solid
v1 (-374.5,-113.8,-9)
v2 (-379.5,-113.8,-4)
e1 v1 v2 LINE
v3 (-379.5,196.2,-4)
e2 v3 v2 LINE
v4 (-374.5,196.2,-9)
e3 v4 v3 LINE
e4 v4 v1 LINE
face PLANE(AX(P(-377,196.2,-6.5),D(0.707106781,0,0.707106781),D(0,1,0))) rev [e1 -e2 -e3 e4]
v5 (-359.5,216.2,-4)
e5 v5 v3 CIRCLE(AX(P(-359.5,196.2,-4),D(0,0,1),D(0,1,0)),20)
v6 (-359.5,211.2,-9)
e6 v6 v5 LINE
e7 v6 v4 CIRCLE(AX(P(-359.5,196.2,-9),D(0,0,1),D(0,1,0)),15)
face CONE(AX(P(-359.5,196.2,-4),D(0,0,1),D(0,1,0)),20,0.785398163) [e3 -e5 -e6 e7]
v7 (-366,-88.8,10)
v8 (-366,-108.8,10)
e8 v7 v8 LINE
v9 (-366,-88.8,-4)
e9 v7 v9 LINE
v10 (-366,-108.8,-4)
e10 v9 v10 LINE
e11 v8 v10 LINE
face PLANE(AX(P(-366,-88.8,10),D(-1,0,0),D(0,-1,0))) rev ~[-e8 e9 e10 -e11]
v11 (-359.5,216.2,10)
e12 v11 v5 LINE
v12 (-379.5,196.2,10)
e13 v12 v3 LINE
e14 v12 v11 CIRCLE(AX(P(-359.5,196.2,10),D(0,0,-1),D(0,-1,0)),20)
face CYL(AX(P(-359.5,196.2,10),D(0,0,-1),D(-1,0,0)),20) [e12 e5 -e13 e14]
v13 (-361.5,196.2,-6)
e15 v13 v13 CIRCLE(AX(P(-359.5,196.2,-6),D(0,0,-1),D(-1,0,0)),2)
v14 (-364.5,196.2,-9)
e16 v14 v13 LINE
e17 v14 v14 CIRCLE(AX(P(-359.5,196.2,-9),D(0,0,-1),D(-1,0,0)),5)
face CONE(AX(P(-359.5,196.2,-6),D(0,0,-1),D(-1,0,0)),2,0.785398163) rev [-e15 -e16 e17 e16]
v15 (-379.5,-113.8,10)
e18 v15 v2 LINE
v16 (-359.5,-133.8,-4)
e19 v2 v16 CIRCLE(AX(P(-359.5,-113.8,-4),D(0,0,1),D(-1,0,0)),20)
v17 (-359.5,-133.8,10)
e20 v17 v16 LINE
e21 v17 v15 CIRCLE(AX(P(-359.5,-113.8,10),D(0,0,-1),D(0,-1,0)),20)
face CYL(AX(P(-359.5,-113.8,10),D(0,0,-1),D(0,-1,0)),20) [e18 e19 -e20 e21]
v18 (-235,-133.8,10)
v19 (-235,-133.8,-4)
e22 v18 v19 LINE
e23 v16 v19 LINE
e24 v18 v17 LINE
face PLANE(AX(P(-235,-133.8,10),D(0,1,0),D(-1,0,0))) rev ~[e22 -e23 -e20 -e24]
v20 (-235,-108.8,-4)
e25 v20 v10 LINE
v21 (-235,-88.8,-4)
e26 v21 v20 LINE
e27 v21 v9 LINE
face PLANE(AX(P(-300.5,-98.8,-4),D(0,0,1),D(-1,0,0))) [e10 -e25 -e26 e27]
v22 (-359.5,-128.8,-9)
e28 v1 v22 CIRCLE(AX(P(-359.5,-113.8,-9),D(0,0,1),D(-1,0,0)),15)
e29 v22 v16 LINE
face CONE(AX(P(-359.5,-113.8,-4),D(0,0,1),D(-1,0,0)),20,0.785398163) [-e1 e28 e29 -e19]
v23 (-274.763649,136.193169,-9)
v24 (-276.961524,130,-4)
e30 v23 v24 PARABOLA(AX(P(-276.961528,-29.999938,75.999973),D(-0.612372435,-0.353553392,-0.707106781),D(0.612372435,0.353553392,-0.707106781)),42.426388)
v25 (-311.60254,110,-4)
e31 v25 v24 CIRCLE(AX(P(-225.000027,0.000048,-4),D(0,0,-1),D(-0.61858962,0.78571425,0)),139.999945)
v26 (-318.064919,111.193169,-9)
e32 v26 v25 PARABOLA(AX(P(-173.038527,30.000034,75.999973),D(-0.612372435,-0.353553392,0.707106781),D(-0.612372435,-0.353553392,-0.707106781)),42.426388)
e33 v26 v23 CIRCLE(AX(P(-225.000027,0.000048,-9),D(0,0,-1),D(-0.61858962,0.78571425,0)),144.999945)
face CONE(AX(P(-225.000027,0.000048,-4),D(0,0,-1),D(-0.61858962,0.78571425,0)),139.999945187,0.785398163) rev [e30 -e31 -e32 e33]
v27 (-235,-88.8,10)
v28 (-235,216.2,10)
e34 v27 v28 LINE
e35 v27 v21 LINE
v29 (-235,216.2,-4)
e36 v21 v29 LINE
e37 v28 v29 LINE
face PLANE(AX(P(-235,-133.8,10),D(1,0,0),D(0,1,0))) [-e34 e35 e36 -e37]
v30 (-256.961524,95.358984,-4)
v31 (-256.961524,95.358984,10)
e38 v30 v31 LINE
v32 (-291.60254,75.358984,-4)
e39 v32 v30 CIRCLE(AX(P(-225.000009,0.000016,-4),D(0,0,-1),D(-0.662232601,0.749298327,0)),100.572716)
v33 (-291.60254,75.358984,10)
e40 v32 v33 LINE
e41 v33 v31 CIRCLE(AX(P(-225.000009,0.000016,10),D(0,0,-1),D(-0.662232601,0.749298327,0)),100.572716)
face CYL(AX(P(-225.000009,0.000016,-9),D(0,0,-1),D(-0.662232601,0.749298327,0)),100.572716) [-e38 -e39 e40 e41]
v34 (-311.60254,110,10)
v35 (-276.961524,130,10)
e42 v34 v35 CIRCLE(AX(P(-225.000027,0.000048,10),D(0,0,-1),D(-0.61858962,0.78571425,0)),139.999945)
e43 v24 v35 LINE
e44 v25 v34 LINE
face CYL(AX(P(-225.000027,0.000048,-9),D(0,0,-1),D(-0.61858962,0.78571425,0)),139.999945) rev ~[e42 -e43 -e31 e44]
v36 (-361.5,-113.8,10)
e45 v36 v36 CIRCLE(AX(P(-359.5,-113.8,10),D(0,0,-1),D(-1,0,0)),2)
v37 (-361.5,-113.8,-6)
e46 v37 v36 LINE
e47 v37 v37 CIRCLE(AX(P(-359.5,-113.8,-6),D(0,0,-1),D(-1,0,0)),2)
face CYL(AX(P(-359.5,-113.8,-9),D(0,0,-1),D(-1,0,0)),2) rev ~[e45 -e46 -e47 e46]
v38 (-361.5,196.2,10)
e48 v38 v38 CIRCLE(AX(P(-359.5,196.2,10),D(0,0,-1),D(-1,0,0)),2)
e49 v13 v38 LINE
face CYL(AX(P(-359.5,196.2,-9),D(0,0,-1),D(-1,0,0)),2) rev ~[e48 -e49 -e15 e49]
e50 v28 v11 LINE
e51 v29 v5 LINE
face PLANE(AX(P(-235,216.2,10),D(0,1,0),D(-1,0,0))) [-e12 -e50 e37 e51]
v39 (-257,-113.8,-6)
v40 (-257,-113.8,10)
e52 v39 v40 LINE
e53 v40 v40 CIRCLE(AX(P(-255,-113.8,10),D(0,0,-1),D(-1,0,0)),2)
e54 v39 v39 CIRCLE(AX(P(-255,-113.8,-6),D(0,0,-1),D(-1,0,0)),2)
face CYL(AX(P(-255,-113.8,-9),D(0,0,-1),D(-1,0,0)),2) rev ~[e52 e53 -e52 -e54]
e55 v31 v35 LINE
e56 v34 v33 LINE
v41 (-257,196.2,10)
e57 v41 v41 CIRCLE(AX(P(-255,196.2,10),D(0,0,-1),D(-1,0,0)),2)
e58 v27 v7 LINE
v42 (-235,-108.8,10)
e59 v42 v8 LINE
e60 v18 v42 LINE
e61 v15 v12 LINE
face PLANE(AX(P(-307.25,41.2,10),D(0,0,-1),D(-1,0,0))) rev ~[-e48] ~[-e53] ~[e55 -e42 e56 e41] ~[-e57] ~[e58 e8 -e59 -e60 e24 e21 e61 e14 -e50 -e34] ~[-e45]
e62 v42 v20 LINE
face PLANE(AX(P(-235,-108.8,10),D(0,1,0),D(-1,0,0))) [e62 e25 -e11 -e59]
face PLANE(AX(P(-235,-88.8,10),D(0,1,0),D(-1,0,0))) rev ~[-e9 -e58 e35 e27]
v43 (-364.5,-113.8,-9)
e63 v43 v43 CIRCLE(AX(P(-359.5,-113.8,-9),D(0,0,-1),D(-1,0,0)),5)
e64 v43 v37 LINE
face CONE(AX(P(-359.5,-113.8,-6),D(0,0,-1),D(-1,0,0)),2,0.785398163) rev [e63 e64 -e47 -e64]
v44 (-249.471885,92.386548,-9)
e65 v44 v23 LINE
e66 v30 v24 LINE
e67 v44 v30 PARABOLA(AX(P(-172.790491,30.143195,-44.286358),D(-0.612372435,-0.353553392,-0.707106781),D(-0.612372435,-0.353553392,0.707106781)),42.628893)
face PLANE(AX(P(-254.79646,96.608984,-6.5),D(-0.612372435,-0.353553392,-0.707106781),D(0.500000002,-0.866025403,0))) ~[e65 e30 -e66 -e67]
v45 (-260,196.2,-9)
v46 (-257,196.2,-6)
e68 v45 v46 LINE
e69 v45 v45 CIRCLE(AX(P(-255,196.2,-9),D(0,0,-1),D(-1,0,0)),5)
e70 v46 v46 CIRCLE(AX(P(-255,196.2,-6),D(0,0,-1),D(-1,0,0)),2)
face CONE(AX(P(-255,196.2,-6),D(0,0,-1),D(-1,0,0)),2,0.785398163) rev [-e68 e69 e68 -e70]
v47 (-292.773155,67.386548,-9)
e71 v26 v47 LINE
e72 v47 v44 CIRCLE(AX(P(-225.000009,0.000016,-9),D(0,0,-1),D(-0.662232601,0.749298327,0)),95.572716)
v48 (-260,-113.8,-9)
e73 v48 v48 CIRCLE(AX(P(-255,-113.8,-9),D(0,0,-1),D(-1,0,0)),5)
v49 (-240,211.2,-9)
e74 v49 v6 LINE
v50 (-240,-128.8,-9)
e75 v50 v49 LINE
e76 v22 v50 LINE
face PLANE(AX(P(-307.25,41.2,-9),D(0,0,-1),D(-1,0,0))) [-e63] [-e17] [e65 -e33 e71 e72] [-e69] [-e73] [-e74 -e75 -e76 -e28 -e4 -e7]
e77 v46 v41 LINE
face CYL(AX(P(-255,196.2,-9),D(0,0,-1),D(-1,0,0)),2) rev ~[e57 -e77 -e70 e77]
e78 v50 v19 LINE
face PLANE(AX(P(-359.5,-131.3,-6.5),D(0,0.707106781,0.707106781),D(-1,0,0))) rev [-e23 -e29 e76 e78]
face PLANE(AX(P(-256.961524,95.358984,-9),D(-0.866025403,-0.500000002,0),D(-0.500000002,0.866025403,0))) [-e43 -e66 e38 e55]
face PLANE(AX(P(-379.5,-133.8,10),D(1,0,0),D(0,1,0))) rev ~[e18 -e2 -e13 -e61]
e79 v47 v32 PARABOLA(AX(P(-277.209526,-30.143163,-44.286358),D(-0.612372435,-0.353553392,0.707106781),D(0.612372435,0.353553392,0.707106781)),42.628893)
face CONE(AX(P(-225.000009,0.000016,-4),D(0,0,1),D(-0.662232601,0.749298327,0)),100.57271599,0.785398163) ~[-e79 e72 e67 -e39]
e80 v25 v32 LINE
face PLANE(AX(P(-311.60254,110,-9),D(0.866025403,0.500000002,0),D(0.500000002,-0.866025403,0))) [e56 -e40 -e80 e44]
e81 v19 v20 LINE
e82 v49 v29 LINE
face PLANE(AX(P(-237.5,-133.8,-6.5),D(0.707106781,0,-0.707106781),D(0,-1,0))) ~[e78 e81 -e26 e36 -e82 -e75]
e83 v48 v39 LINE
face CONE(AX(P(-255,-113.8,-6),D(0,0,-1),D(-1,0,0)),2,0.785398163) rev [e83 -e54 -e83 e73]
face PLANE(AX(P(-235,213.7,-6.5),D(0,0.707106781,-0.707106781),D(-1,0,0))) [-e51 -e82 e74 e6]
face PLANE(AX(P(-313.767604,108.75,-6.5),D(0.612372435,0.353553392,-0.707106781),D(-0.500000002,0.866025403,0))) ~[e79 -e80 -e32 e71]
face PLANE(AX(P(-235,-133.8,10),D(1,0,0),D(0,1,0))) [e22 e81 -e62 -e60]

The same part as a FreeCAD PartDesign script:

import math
import FreeCAD as App
import Part
import Sketcher
from FreeCAD import Vector
Q = App.Units.Quantity


def edges_at(feature, points):
    """Names of the edges that pass closest to the given points."""
    edges = feature.Shape.Edges
    near = lambda p: min(range(len(edges)), key=lambda i: edges[i].distToShape(Part.Vertex(*p))[0])
    return sorted({f"Edge{near(p) + 1}" for p in points})

doc = App.newDocument("Part")
body = doc.addObject("PartDesign::Body", "Body")

# Sketch on XY plane
sketch1 = doc.addObject("Sketcher::SketchObject", "Sketch")
body.addObject(sketch1)
sketch1.AttachmentSupport = (doc.XY_Plane, [""])
sketch1.MapMode = "FlatFace"
sketch1.addGeometry(Part.LineSegment(Vector(235, 216.2, 0), Vector(235, -133.8, 0)), False)
sketch1.addGeometry(Part.LineSegment(Vector(235, -133.8, 0), Vector(379.5, -133.8, 0)), False)
sketch1.addGeometry(Part.LineSegment(Vector(379.5, -133.8, 0), Vector(379.5, 216.2, 0)), False)
sketch1.addGeometry(Part.LineSegment(Vector(379.5, 216.2, 0), Vector(235, 216.2, 0)), False)
sketch1.addConstraint(Sketcher.Constraint("Coincident", 0, 2, 1, 1))
sketch1.addConstraint(Sketcher.Constraint("Coincident", 1, 2, 2, 1))
sketch1.addConstraint(Sketcher.Constraint("Coincident", 2, 2, 3, 1))
sketch1.addConstraint(Sketcher.Constraint("Coincident", 3, 2, 0, 1))
sketch1.addConstraint(Sketcher.Constraint("Vertical", 0))
sketch1.addConstraint(Sketcher.Constraint("Horizontal", 1))
sketch1.addConstraint(Sketcher.Constraint("Vertical", 2))
sketch1.addConstraint(Sketcher.Constraint("Horizontal", 3))
sketch1.addConstraint(Sketcher.Constraint("DistanceY", 0, 2, 0, 1, 350.0))
sketch1.addConstraint(Sketcher.Constraint("DistanceX", 1, 1, 1, 2, 144.5))
sketch1.addConstraint(Sketcher.Constraint("DistanceX", -1, 1, 0, 2, 235.0))
sketch1.addConstraint(Sketcher.Constraint("DistanceY", 0, 2, -1, 1, 133.8))
pad1 = doc.addObject("PartDesign::Pad", "Pad")
body.addObject(pad1)
pad1.Profile = sketch1
pad1.Length = 19
doc.recompute()

fillet = doc.addObject("PartDesign::Fillet", "Fillet")
body.addObject(fillet)
fillet.Base = (pad1, edges_at(pad1, [(379.5, 216.2, 9.5), (379.5, -133.8, 9.5)]))
fillet.Radius = 20

# Sketch on XY plane
sketch2 = doc.addObject("Sketcher::SketchObject", "Sketch001")
body.addObject(sketch2)
sketch2.AttachmentSupport = (doc.XY_Plane, [""])
sketch2.MapMode = "FlatFace"
sketch2.AttachmentOffset = App.Placement(Vector(0, 0, 19), App.Rotation())
sketch2.addGeometry(Part.Circle(Vector(359.5, 196.2, 0), Vector(0, 0, 1), 2), False)
sketch2.addGeometry(Part.Circle(Vector(359.5, -113.8, 0), Vector(0, 0, 1), 2), False)
sketch2.addGeometry(Part.Circle(Vector(255, -113.8, 0), Vector(0, 0, 1), 2), False)
sketch2.addGeometry(Part.Circle(Vector(255, 196.2, 0), Vector(0, 0, 1), 2), False)
sketch2.addConstraint(Sketcher.Constraint("Equal", 0, 1))
sketch2.addConstraint(Sketcher.Constraint("Equal", 1, 2))
sketch2.addConstraint(Sketcher.Constraint("Equal", 2, 3))
sketch2.addConstraint(Sketcher.Constraint("Horizontal", 1, 3, 2, 3))
sketch2.addConstraint(Sketcher.Constraint("Horizontal", 0, 3, 3, 3))
sketch2.addConstraint(Sketcher.Constraint("Vertical", 0, 3, 1, 3))
sketch2.addConstraint(Sketcher.Constraint("Vertical", 2, 3, 3, 3))
sketch2.addConstraint(Sketcher.Constraint("Diameter", 0, 4.0))
sketch2.addConstraint(Sketcher.Constraint("DistanceX", -1, 1, 2, 3, 255.0))
sketch2.addConstraint(Sketcher.Constraint("DistanceY", 1, 3, 0, 3, 310.0))
sketch2.addConstraint(Sketcher.Constraint("DistanceX", -1, 1, 0, 3, 359.5))
sketch2.addConstraint(Sketcher.Constraint("DistanceY", -1, 1, 0, 3, 196.2))
pocket1 = doc.addObject("PartDesign::Pocket", "Pocket")
body.addObject(pocket1)
pocket1.Profile = sketch2
pocket1.Type = "ThroughAll"
doc.recompute()

chamfer = doc.addObject("PartDesign::Chamfer", "Chamfer")
body.addObject(chamfer)
chamfer.Base = (pocket1, edges_at(pocket1, [(297.25, 216.2, 19), (235, 41.2, 19)]))
chamfer.Size = 5

# Sketch on XY plane
sketch3 = doc.addObject("Sketcher::SketchObject", "Sketch002")
body.addObject(sketch3)
sketch3.AttachmentSupport = (doc.XY_Plane, [""])
sketch3.MapMode = "FlatFace"
sketch3.AttachmentOffset = App.Placement(Vector(0, 0, 19), App.Rotation())
sketch3.addGeometry(Part.LineSegment(Vector(276.961524, 130, 0), Vector(256.961524, 95.358984, 0)), False)
sketch3.addGeometry(Part.ArcOfCircle(Part.Circle(Vector(225.000009, 0.000016, 0), Vector(0, 0, 1), 100.572716), math.radians(48.529633), math.radians(71.470366)), False)
sketch3.addGeometry(Part.LineSegment(Vector(291.60254, 75.358984, 0), Vector(311.60254, 110, 0)), False)
sketch3.addGeometry(Part.ArcOfCircle(Part.Circle(Vector(225.000027, 0.000048, 0), Vector(0, 0, 1), 139.999945), math.radians(51.786786), math.radians(68.213214)), False)
sketch3.addConstraint(Sketcher.Constraint("Coincident", 0, 2, 1, 2))
sketch3.addConstraint(Sketcher.Constraint("Coincident", 1, 1, 2, 1))
sketch3.addConstraint(Sketcher.Constraint("Coincident", 2, 2, 3, 1))
sketch3.addConstraint(Sketcher.Constraint("Coincident", 3, 2, 0, 1))
sketch3.addConstraint(Sketcher.Constraint("Parallel", 0, 2))
sketch3.addConstraint(Sketcher.Constraint("Equal", 0, 2))
sketch3.addConstraint(Sketcher.Constraint("Angle", 0, Q("-120 deg")))
sketch3.addConstraint(Sketcher.Constraint("Distance", 0, 40.0))
sketch3.addConstraint(Sketcher.Constraint("DistanceY", -1, 1, 2, 2, 110.0))
sketch3.addConstraint(Sketcher.Constraint("DistanceY", -1, 1, 3, 2, 130.0))
sketch3.addConstraint(Sketcher.Constraint("Radius", 1, 100.572716))
sketch3.addConstraint(Sketcher.Constraint("Radius", 3, 139.999945))
sketch3.addConstraint(Sketcher.Constraint("DistanceX", -1, 1, 1, 3, 225.000009))
sketch3.addConstraint(Sketcher.Constraint("DistanceX", -1, 1, 1, 1, 291.60254))
pocket2 = doc.addObject("PartDesign::Pocket", "Pocket001")
body.addObject(pocket2)
pocket2.Profile = sketch3
pocket2.Type = "ThroughAll"
doc.recompute()

chamfer2 = doc.addObject("PartDesign::Chamfer", "Chamfer001")
body.addObject(chamfer2)
chamfer2.Base = (pocket2, edges_at(pocket2, [
    (295, 121.244, 19),
    (266.962, 112.679, 19),
    (275.286, 87.099, 19),
    (301.603, 92.679, 19),
]))
chamfer2.Size = 5
doc.recompute()

chamfer3 = doc.addObject("PartDesign::Chamfer", "Chamfer002")
body.addObject(chamfer3)
chamfer3.Base = (chamfer2, edges_at(chamfer2, [
    (253, 196.2, 19),
    (357.5, 196.2, 19),
    (357.5, -113.8, 19),
    (253, -113.8, 19),
]))
chamfer3.Size = 3

# Sketch on XY plane
sketch4 = doc.addObject("Sketcher::SketchObject", "Sketch003")
body.addObject(sketch4)
sketch4.AttachmentSupport = (doc.XY_Plane, [""])
sketch4.MapMode = "FlatFace"
sketch4.addGeometry(Part.LineSegment(Vector(235, -108.8, 0), Vector(235, -88.8, 0)), False)
sketch4.addGeometry(Part.LineSegment(Vector(235, -88.8, 0), Vector(366, -88.8, 0)), False)
sketch4.addGeometry(Part.LineSegment(Vector(366, -88.8, 0), Vector(366, -108.8, 0)), False)
sketch4.addGeometry(Part.LineSegment(Vector(366, -108.8, 0), Vector(235, -108.8, 0)), False)
sketch4.addConstraint(Sketcher.Constraint("Coincident", 0, 2, 1, 1))
sketch4.addConstraint(Sketcher.Constraint("Coincident", 1, 2, 2, 1))
sketch4.addConstraint(Sketcher.Constraint("Coincident", 2, 2, 3, 1))
sketch4.addConstraint(Sketcher.Constraint("Coincident", 3, 2, 0, 1))
sketch4.addConstraint(Sketcher.Constraint("Vertical", 0))
sketch4.addConstraint(Sketcher.Constraint("Horizontal", 1))
sketch4.addConstraint(Sketcher.Constraint("Vertical", 2))
sketch4.addConstraint(Sketcher.Constraint("Horizontal", 3))
sketch4.addConstraint(Sketcher.Constraint("DistanceX", 1, 1, 1, 2, 131.0))
sketch4.addConstraint(Sketcher.Constraint("DistanceY", 0, 1, 0, 2, 20.0))
sketch4.addConstraint(Sketcher.Constraint("DistanceX", -1, 1, 0, 2, 235.0))
sketch4.addConstraint(Sketcher.Constraint("DistanceY", 0, 2, -1, 1, 88.8))
pocket3 = doc.addObject("PartDesign::Pocket", "Pocket002")
body.addObject(pocket3)
pocket3.Profile = sketch4
pocket3.Length = 14
pocket3.Reversed = True
body2 = doc.addObject("PartDesign::Body", "Body001")
doc.recompute()

body.Placement = App.Placement(Vector(0, 0, 10), App.Rotation(Vector(0, 1, 0), 180))
boolean = doc.addObject("PartDesign::Boolean", "Boolean")
body2.addObject(boolean)
boolean.Type = "Fuse"
boolean.addObjects([body])

doc.recompute()
